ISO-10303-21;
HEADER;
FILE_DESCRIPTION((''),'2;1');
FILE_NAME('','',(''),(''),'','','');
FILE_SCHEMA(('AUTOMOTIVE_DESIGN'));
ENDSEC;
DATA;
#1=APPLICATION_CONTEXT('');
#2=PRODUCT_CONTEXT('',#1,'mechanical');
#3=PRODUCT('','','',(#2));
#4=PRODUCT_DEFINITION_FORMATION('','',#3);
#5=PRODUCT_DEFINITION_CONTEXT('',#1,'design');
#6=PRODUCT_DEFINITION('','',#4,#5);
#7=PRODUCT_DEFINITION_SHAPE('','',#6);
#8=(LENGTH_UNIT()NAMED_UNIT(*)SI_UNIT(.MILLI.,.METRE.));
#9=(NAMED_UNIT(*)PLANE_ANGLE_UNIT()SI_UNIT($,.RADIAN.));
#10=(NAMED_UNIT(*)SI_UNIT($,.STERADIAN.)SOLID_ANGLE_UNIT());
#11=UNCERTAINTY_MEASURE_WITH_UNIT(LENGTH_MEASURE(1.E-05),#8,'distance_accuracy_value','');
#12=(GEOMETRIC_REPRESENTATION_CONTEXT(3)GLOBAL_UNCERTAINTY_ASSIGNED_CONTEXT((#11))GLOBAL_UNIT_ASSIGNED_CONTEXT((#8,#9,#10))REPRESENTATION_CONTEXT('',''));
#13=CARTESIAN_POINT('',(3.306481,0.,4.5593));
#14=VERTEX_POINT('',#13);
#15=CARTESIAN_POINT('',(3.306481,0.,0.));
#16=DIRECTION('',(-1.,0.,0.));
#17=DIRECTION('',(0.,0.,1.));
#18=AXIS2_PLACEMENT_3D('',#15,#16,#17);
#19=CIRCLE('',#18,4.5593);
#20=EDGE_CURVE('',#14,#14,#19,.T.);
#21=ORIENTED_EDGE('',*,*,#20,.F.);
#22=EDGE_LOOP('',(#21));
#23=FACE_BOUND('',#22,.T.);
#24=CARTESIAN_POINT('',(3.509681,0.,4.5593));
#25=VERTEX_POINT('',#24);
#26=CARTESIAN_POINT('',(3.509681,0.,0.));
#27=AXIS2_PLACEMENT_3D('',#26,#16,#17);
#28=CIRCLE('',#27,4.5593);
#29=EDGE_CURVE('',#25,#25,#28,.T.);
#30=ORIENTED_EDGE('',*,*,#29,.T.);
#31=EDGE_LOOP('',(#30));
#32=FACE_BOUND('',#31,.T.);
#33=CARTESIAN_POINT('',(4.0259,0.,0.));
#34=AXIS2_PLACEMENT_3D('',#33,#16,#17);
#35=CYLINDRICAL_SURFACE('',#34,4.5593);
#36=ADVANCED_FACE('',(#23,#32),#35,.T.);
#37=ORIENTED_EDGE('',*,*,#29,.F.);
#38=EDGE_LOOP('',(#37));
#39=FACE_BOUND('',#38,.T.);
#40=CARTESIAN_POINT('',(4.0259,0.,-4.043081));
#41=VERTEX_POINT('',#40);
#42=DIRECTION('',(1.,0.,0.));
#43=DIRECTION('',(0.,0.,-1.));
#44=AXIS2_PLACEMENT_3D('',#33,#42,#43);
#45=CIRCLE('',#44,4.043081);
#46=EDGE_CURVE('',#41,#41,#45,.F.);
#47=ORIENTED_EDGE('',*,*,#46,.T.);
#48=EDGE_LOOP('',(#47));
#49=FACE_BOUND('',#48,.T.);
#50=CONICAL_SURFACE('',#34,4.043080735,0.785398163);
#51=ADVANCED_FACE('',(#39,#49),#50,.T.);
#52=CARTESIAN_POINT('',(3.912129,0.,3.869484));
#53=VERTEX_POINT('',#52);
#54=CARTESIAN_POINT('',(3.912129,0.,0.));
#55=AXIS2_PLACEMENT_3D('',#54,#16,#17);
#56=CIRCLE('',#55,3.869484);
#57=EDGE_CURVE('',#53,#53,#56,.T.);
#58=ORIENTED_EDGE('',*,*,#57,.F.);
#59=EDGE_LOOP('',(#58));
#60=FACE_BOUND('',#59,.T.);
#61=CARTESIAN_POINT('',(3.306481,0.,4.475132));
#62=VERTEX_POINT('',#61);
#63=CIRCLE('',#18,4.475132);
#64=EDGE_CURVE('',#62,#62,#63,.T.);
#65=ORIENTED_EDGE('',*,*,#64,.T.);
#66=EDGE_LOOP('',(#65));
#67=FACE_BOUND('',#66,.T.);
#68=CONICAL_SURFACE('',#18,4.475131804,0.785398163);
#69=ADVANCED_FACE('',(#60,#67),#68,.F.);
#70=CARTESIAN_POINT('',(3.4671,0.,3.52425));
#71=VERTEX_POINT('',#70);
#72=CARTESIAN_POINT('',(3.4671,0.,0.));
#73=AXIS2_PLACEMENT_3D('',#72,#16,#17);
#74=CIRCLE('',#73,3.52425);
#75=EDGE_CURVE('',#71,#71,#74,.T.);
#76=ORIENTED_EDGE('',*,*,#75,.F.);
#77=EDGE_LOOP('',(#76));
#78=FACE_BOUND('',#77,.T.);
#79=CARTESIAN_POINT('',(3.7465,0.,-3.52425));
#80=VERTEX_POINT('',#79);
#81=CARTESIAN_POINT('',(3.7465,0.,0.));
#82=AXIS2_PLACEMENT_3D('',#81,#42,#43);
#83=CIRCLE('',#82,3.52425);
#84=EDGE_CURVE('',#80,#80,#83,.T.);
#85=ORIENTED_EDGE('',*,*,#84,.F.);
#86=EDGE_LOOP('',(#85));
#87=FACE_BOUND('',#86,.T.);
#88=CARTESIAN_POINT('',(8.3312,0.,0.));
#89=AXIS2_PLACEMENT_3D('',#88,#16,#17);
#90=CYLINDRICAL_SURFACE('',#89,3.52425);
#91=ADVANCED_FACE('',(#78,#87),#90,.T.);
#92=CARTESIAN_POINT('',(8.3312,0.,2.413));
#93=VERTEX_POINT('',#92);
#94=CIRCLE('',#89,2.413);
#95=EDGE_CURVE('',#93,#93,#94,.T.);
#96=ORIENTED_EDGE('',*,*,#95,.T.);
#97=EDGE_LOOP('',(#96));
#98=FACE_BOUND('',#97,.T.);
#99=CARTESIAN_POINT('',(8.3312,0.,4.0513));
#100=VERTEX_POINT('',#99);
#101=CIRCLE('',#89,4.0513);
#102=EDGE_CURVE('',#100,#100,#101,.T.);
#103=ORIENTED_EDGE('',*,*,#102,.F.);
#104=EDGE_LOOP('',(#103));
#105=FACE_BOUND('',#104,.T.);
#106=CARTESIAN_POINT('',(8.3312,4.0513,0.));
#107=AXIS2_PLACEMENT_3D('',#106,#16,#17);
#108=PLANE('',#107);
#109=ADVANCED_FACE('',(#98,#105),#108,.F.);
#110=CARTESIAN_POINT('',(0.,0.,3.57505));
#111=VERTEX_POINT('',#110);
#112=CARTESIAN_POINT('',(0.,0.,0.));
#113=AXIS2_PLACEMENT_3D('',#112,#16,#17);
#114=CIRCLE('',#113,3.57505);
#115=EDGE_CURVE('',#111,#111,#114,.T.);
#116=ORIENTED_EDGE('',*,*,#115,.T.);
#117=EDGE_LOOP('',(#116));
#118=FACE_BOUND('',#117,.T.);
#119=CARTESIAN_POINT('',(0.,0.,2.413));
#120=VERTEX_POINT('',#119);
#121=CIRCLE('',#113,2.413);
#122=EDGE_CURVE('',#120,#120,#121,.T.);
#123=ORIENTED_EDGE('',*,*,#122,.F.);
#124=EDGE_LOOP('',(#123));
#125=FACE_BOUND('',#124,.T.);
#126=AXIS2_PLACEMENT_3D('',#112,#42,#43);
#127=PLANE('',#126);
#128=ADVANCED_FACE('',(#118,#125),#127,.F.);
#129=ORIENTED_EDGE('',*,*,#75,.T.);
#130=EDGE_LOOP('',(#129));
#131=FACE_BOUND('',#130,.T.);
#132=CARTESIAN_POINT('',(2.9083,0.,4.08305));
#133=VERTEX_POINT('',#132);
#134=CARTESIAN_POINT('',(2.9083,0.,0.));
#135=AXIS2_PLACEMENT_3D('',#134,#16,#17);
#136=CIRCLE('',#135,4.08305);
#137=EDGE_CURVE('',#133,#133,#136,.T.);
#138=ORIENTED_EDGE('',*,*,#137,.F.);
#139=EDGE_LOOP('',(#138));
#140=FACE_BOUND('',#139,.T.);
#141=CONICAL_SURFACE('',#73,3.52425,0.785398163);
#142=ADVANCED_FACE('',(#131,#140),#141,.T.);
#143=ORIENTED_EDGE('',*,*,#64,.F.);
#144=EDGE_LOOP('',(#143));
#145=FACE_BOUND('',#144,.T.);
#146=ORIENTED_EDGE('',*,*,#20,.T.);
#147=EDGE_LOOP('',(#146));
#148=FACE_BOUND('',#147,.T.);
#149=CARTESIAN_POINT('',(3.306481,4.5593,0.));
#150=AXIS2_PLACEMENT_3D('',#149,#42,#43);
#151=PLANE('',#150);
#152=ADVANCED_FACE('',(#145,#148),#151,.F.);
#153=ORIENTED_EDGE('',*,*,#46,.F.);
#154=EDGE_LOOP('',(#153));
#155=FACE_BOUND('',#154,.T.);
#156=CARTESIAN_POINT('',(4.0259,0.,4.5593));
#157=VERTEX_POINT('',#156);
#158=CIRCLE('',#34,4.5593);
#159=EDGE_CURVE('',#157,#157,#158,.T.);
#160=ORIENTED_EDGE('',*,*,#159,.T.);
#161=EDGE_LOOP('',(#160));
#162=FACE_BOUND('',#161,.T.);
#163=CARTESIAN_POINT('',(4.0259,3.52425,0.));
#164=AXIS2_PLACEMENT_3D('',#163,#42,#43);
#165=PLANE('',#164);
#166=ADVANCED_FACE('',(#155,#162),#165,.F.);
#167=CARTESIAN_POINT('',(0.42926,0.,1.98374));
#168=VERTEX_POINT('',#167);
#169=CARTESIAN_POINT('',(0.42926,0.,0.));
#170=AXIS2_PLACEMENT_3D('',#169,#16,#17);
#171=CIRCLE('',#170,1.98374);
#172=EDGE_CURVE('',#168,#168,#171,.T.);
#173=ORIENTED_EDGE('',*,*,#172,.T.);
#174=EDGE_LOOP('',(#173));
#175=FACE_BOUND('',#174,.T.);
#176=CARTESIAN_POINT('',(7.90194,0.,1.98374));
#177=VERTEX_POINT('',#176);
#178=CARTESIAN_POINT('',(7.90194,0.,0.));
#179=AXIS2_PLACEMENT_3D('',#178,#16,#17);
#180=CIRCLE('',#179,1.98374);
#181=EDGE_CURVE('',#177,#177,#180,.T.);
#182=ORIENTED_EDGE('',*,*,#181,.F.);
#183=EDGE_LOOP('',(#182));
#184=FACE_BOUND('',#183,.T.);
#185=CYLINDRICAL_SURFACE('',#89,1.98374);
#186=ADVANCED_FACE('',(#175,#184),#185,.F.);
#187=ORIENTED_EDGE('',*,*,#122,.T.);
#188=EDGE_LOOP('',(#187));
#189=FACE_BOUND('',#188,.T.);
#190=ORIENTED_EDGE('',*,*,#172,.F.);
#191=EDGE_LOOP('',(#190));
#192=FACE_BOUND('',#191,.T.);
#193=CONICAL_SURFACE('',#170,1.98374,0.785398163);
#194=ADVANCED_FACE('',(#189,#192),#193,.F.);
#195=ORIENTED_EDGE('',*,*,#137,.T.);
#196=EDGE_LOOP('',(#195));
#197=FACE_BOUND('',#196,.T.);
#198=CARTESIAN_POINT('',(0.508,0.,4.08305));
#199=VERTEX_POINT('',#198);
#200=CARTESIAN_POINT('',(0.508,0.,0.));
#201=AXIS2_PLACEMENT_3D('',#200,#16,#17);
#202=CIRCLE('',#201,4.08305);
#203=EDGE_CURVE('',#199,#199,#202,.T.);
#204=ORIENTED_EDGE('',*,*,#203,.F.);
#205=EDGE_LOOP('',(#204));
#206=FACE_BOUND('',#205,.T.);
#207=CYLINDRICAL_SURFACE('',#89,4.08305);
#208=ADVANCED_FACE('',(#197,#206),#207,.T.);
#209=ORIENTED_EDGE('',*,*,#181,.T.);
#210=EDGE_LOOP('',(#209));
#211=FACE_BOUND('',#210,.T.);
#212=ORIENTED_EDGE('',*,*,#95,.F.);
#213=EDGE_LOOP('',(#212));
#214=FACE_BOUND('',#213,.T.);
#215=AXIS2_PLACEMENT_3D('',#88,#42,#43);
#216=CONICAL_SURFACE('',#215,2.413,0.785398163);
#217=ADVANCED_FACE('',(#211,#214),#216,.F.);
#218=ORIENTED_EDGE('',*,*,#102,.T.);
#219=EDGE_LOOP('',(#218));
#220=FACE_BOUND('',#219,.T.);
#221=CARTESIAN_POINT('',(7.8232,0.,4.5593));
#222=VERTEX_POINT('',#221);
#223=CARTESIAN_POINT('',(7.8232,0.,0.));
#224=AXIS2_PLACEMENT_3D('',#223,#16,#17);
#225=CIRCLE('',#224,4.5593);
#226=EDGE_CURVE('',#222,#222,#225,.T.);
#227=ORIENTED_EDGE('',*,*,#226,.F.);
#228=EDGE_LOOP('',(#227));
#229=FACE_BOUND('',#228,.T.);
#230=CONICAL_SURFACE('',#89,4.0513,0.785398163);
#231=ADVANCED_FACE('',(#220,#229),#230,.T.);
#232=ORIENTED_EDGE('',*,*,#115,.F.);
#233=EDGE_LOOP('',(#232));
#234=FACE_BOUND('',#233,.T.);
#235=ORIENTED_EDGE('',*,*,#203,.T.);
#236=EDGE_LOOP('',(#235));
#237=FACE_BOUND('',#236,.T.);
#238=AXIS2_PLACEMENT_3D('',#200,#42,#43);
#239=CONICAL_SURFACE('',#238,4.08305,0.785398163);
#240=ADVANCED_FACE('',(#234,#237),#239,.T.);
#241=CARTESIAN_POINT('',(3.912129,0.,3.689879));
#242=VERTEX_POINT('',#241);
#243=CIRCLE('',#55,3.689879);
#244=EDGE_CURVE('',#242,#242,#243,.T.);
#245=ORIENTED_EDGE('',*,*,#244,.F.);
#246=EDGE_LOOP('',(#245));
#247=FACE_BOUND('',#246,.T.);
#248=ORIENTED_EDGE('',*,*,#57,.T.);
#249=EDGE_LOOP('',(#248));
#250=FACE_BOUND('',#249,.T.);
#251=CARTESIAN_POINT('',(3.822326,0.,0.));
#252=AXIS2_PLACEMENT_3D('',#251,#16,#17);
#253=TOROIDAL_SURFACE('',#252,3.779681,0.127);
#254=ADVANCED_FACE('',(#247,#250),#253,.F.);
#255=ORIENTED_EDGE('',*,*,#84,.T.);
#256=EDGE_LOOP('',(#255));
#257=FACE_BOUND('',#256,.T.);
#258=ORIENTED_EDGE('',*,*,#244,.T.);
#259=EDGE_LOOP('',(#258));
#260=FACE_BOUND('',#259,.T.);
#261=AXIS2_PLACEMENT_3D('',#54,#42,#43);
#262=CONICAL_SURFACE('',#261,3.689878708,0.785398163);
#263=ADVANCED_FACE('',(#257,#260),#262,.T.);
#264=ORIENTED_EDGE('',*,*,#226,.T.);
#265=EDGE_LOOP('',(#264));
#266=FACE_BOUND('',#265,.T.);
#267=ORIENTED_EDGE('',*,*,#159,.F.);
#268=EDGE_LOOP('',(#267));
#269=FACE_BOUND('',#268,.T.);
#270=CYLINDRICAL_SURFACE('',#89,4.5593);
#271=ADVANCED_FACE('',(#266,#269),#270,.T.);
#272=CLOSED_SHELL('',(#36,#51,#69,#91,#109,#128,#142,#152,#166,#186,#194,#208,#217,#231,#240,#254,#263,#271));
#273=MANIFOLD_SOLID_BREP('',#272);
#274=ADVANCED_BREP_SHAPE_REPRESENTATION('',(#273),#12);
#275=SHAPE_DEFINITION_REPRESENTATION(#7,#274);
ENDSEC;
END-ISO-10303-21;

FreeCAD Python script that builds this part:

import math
import FreeCAD as App
import Part
import Sketcher
Q = App.Units.Quantity


def add_polygon(sketch, points):
    """Adds a closed chain of lines whose ends are joined by coincident constraints."""
    first, n = sketch.GeometryCount, len(points)
    for a, b in zip(points, points[1:] + points[:1]):
        sketch.addGeometry(Part.LineSegment(App.Vector(*a, 0), App.Vector(*b, 0)), False)
    for i in range(n):
        sketch.addConstraint(Sketcher.Constraint("Coincident", first + i, 2, first + (i + 1) % n, 1))

doc = App.newDocument("Part")
body = doc.addObject("PartDesign::Body", "Body")

# Sketch on XY plane
sketch1 = body.newObject("Sketcher::SketchObject", "Sketch")
sketch1.AttachmentSupport = (doc.getObject("XY_Plane"), [""])
sketch1.MapMode = "FlatFace"
add_polygon(sketch1, [(0, 3.6), (0, 0), (8.3, 0), (8.3, 4.1), (7.8, 4.6), (4, 4.6), (4, 3.5), (3.5, 3.5), (2.9, 4.1), (0.5, 4.1)])  # lines 0-9
sketch1.addConstraint([
    Sketcher.Constraint("Vertical", 0),
    Sketcher.Constraint("Horizontal", 1),
    Sketcher.Constraint("Vertical", 2),
    Sketcher.Constraint("Horizontal", 4),
    Sketcher.Constraint("Vertical", 5),
    Sketcher.Constraint("Horizontal", 6),
    Sketcher.Constraint("Horizontal", 8),
    Sketcher.Constraint("Coincident", 0, 2, -1, 1),
    Sketcher.Constraint("Parallel", 3, 7),
    Sketcher.Constraint("Perpendicular", 7, 9),
    Sketcher.Constraint("Equal", 3, 9),
    Sketcher.Constraint("Angle", 3, Q("135 deg")),
    Sketcher.Constraint("DistanceX", 1, 1, 1, 2, Q("0.328 in")),
    Sketcher.Constraint("DistanceX", 6, 2, 6, 1, Q("0.022 in")),
    Sketcher.Constraint("DistanceX", -1, 1, 8, 2, Q("0.02 in")),
    Sketcher.Constraint("DistanceX", 4, 2, 4, 1, Q("0.1495 in")),
    Sketcher.Constraint("DistanceX", 8, 2, 8, 1, Q("0.0945 in")),
    Sketcher.Constraint("DistanceY", 2, 1, 2, 2, Q("0.1595 in")),
    Sketcher.Constraint("DistanceY", 0, 2, 0, 1, Q("3.57505 mm")),
])
revolution = body.newObject("PartDesign::Revolution", "Revolution")
revolution.Profile = sketch1
revolution.ReferenceAxis = (sketch1, ["H_Axis"])
revolution.Angle = 360

# Sketch on XY plane
sketch2 = body.newObject("Sketcher::SketchObject", "Sketch001")
sketch2.AttachmentSupport = (doc.getObject("XY_Plane"), [""])
sketch2.MapMode = "FlatFace"
add_polygon(sketch2, [(0, 2.4), (0, 0), (8.3, 0), (8.3, 2.4), (7.9, 2), (0.4, 2)])  # lines 0-5
sketch2.addConstraint([
    Sketcher.Constraint("Vertical", 0),
    Sketcher.Constraint("Horizontal", 1),
    Sketcher.Constraint("Vertical", 2),
    Sketcher.Constraint("Horizontal", 4),
    Sketcher.Constraint("Coincident", 0, 2, -1, 1),
    Sketcher.Constraint("Perpendicular", 3, 5),
    Sketcher.Constraint("Horizontal", 2, 2, 5, 2),
    Sketcher.Constraint("Equal", 3, 5),
    Sketcher.Constraint("DistanceX", 1, 1, 1, 2, Q("0.328 in")),
    Sketcher.Constraint("DistanceY", 0, 2, 0, 1, Q("0.095 in")),
    Sketcher.Constraint("DistanceX", 4, 2, 4, 1, Q("0.2942 in")),
])
groove = body.newObject("PartDesign::Groove", "Groove")
groove.Profile = sketch2
groove.ReferenceAxis = (sketch2, ["H_Axis"])
groove.Angle = 360

# Sketch on XY plane
sketch3 = body.newObject("Sketcher::SketchObject", "Sketch002")
sketch3.AttachmentSupport = (doc.getObject("XY_Plane"), [""])
sketch3.MapMode = "FlatFace"
sketch3.addGeometry([
    Part.LineSegment(App.Vector(3.31, 4.48, 0), App.Vector(3.91, 3.87, 0)),  # 0
    Part.ArcOfCircle(Part.Circle(App.Vector(3.82, 3.78, 0), App.Vector(0, 0, 1), 0.13), math.radians(-45), math.radians(45)),  # 1
    Part.LineSegment(App.Vector(3.91, 3.69, 0), App.Vector(3.75, 3.52, 0)),  # 2
    Part.LineSegment(App.Vector(3.75, 3.52, 0), App.Vector(3.47, 3.52, 0)),  # 3
    Part.LineSegment(App.Vector(3.47, 3.52, 0), App.Vector(3.47, 3.27, 0)),  # 4
    Part.LineSegment(App.Vector(3.47, 3.27, 0), App.Vector(4.03, 3.27, 0)),  # 5
    Part.LineSegment(App.Vector(4.03, 3.27, 0), App.Vector(4.03, 4.04, 0)),  # 6
    Part.LineSegment(App.Vector(4.03, 4.04, 0), App.Vector(3.51, 4.56, 0)),  # 7
    Part.LineSegment(App.Vector(3.51, 4.56, 0), App.Vector(3.31, 4.56, 0)),  # 8
    Part.LineSegment(App.Vector(3.31, 4.56, 0), App.Vector(3.31, 4.48, 0)),  # 9
], False)
sketch3.addConstraint([
    Sketcher.Constraint("Tangent", 0, 2, 1, 2),
    Sketcher.Constraint("Tangent", 1, 1, 2, 1),
    Sketcher.Constraint("Coincident", 2, 2, 3, 1),
    Sketcher.Constraint("Coincident", 3, 2, 4, 1),
    Sketcher.Constraint("Coincident", 4, 2, 5, 1),
    Sketcher.Constraint("Coincident", 5, 2, 6, 1),
    Sketcher.Constraint("Coincident", 6, 2, 7, 1),
    Sketcher.Constraint("Coincident", 7, 2, 8, 1),
    Sketcher.Constraint("Coincident", 8, 2, 9, 1),
    Sketcher.Constraint("Coincident", 9, 2, 0, 1),
    Sketcher.Constraint("Horizontal", 3),
    Sketcher.Constraint("Vertical", 4),
    Sketcher.Constraint("Horizontal", 5),
    Sketcher.Constraint("Vertical", 6),
    Sketcher.Constraint("Horizontal", 8),
    Sketcher.Constraint("Vertical", 9),
    Sketcher.Constraint("Perpendicular", 0, 2),
    Sketcher.Constraint("Perpendicular", 2, 7),
    Sketcher.Constraint("Vertical", 0, 2, 1, 1),
    Sketcher.Constraint("Radius", 1, Q("0.005 in")),
    Sketcher.Constraint("DistanceY", 4, 2, 4, 1, Q("0.01 in")),
    Sketcher.Constraint("DistanceX", 3, 2, 3, 1, Q("0.011 in")),
    Sketcher.Constraint("DistanceX", 5, 1, 5, 2, Q("0.022 in")),
    Sketcher.Constraint("DistanceX", 8, 2, 8, 1, Q("0.008 in")),
    Sketcher.Constraint("DistanceX", -1, 1, 2, 2, Q("0.1475 in")),
    Sketcher.Constraint("DistanceY", -1, 1, 7, 2, Q("0.1795 in")),
    Sketcher.Constraint("DistanceY", 6, 1, 6, 2, Q("0.772831 mm")),
    Sketcher.Constraint("DistanceY", 9, 2, 9, 1, Q("0.084168 mm")),
    Sketcher.Constraint("DistanceY", -1, 1, 1, 3, Q("3.779681 mm")),
])
revolution2 = body.newObject("PartDesign::Revolution", "Revolution001")
revolution2.Profile = sketch3
revolution2.ReferenceAxis = (sketch3, ["H_Axis"])
revolution2.Angle = 360

doc.recompute()
